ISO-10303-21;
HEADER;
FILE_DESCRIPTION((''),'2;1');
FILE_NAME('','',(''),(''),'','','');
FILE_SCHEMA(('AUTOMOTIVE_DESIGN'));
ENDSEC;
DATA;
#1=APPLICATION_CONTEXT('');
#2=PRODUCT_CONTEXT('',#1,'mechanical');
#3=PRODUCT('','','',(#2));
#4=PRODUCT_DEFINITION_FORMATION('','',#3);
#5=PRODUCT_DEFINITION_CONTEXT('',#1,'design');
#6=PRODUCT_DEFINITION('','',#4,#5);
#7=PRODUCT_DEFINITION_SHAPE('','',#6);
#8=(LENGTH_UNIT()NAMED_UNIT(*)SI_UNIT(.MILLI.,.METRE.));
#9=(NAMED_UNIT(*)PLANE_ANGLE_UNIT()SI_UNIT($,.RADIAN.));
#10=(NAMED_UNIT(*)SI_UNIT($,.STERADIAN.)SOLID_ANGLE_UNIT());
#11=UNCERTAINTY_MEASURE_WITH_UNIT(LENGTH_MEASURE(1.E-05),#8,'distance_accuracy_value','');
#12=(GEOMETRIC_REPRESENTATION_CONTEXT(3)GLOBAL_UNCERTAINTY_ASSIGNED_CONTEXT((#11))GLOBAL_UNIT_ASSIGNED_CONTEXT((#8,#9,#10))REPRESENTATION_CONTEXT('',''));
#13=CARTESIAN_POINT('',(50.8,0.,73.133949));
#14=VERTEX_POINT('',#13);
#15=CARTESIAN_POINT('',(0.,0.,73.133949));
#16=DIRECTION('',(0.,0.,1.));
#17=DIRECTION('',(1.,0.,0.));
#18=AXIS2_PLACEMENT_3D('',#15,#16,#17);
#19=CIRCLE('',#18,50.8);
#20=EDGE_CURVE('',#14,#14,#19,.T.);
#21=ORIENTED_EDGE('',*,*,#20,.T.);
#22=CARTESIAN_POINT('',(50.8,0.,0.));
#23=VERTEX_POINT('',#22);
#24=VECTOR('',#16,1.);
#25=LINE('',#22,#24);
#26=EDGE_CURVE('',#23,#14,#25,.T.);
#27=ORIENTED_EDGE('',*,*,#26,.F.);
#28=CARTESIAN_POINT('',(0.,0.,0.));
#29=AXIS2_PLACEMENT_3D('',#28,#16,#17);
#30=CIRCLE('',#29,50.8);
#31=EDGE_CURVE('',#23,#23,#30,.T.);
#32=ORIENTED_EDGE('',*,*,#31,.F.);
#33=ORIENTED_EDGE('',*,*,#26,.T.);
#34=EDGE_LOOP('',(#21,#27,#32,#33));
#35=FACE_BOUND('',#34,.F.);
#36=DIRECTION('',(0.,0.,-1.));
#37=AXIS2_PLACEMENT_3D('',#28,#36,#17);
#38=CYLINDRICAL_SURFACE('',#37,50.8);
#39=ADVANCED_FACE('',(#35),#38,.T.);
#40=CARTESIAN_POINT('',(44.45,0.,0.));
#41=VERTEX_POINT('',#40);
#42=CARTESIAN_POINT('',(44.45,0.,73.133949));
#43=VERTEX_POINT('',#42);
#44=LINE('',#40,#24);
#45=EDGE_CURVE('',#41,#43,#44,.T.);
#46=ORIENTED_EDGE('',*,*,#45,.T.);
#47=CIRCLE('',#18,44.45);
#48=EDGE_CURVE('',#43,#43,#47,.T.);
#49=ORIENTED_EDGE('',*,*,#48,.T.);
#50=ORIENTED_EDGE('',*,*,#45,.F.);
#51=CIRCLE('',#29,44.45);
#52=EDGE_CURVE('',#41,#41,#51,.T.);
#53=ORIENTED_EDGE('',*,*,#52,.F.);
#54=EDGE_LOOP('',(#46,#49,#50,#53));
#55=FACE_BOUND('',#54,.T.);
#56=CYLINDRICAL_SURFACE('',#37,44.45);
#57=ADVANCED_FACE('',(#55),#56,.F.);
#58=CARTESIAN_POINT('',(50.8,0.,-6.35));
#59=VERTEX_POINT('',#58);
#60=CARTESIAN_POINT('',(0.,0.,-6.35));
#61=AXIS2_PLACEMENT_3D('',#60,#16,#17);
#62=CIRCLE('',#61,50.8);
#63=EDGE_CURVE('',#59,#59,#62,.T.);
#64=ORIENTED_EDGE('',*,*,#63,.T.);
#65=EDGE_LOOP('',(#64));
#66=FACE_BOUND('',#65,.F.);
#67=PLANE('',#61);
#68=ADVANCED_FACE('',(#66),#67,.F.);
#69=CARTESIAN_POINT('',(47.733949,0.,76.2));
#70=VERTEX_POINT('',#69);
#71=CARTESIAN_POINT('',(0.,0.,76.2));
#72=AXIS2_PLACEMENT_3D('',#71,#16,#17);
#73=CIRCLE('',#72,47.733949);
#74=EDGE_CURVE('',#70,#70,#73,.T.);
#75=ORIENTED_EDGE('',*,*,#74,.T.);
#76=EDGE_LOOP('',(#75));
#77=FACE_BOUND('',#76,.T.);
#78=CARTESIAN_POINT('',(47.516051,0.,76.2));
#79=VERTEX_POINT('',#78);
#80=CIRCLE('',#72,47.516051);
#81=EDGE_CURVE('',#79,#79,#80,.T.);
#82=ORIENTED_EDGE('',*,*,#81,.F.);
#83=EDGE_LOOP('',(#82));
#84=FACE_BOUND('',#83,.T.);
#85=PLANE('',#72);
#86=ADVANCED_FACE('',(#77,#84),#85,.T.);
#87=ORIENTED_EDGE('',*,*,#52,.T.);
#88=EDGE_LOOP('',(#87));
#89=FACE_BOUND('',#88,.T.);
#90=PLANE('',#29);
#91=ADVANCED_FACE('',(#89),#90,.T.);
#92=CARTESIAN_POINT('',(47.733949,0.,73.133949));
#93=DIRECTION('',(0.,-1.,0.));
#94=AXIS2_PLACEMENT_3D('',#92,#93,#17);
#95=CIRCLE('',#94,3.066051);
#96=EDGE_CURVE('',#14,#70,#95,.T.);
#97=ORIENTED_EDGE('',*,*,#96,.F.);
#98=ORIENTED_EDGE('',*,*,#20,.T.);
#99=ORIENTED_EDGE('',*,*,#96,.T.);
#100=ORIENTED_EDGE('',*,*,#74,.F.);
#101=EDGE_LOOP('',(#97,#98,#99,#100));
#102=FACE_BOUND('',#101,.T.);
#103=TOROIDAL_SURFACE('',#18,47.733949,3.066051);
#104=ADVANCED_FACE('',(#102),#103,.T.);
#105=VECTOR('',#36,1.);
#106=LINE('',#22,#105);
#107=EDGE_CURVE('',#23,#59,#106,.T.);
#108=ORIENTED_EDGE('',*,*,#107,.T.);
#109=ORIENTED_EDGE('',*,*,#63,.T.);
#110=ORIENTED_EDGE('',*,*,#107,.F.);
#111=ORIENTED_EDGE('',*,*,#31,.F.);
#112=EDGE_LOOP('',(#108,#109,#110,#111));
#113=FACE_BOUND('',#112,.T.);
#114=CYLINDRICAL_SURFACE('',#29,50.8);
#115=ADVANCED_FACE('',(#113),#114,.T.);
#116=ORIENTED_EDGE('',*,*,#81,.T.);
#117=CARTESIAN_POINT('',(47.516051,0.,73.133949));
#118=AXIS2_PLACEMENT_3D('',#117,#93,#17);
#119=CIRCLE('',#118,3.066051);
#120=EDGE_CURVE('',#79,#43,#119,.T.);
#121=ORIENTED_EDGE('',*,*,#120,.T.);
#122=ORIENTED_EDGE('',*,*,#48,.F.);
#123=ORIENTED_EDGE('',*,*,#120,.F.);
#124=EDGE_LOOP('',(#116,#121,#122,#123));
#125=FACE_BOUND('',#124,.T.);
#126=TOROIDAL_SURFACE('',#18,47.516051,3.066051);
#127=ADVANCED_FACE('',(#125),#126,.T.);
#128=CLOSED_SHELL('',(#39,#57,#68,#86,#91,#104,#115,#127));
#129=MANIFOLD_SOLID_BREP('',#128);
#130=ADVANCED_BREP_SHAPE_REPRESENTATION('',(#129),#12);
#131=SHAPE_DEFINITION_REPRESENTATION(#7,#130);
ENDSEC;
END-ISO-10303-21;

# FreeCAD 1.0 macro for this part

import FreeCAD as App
import Part
import Sketcher

V = App.Vector
Q = App.Units.Quantity


def edges_at(feature, points):
    """Names of the edges that pass closest to the given points."""
    edges = feature.Shape.Edges
    near = lambda p: min(range(len(edges)), key=lambda i: edges[i].distToShape(Part.Vertex(*p))[0])
    return sorted({f"Edge{near(p) + 1}" for p in points})

doc = App.newDocument("Part")
body = doc.addObject("PartDesign::Body", "Body")

# Sketch on XY plane
sketch1 = body.newObject("Sketcher::SketchObject", "Sketch")
sketch1.AttachmentSupport = (doc.getObject("XY_Plane"), [""])
sketch1.MapMode = "FlatFace"
sketch1.addGeometry(Part.Circle(V(0, 0, 0), V(0, 0, 1), 51), False)
sketch1.addConstraint([
    Sketcher.Constraint("Coincident", 0, 3, -1, 1),
    Sketcher.Constraint("Diameter", 0, Q("4 in")),
])
pad1 = body.newObject("PartDesign::Pad", "Pad")
pad1.Profile = sketch1
pad1.Length = Q("0.25 in")
pad1.Reversed = True

# Sketch on XY plane
sketch2 = body.newObject("Sketcher::SketchObject", "Sketch001")
sketch2.AttachmentSupport = (doc.getObject("XY_Plane"), [""])
sketch2.MapMode = "FlatFace"
sketch2.addGeometry([
    Part.Circle(V(0, 0, 0), V(0, 0, 1), 51),
    Part.Circle(V(0, 0, 0), V(0, 0, 1), 44),
], False)
sketch2.addConstraint([
    Sketcher.Constraint("Coincident", 0, 3, -1, 1),
    Sketcher.Constraint("Coincident", 1, 3, -1, 1),
    Sketcher.Constraint("Diameter", 0, Q("4 in")),
    Sketcher.Constraint("Diameter", 1, Q("3.5 in")),
])
pad2 = body.newObject("PartDesign::Pad", "Pad001")
pad2.Profile = sketch2
pad2.Length = Q("3 in")
doc.recompute()

fillet = body.newObject("PartDesign::Fillet", "Fillet")
fillet.Base = (pad2, edges_at(pad2, [(-50.8, 0, 76.2)]))
fillet.Radius = 3.066051
doc.recompute()

fillet2 = body.newObject("PartDesign::Fillet", "Fillet001")
fillet2.Base = (fillet, edges_at(fillet, [(-44.45, 0, 76.2)]))
fillet2.Radius = 3.066051

doc.recompute()
